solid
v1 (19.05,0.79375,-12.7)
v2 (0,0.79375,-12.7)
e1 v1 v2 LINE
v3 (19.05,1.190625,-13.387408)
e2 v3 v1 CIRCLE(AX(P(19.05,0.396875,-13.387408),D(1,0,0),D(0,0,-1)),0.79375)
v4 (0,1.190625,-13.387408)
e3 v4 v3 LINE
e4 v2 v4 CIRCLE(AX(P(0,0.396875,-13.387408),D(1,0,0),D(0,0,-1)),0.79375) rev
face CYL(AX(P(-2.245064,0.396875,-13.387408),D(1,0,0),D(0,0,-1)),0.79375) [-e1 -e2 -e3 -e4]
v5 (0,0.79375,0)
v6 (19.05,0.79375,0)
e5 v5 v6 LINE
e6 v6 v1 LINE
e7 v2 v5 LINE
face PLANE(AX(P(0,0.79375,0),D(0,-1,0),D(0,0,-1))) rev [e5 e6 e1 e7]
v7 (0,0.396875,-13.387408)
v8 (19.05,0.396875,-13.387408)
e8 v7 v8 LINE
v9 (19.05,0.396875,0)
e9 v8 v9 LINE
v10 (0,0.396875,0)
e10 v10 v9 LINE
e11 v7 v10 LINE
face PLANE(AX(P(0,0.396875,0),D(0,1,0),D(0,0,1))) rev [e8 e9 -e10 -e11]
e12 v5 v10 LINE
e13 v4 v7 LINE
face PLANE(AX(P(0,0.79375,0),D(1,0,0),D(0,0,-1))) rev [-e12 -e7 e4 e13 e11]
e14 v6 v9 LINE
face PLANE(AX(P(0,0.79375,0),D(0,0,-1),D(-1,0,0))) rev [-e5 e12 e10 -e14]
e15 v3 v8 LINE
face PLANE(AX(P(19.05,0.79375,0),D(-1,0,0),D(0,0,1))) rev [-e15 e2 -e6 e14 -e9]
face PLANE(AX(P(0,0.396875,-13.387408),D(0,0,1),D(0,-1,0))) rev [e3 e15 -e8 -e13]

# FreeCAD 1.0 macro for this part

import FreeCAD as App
import Part
import Sketcher
from FreeCAD import Vector
Q = App.Units.Quantity

doc = App.newDocument("Part")
body = doc.addObject("PartDesign::Body", "Body")

sketch1 = body.newObject("Sketcher::SketchObject", "Sketch")
sketch1.AttachmentSupport = (doc.getObject("XZ_Plane"), [""])
sketch1.MapMode = "FlatFace"
sketch1.addGeometry([
    Part.LineSegment(Vector(0, -13, 0), Vector(0, 0, 0)),
    Part.LineSegment(Vector(0, 0, 0), Vector(19, 0, 0)),
    Part.LineSegment(Vector(19, 0, 0), Vector(19, -13, 0)),
    Part.LineSegment(Vector(19, -13, 0), Vector(0, -13, 0)),
], False)
sketch1.addConstraint([
    Sketcher.Constraint("Coincident", 0, 2, 1, 1),
    Sketcher.Constraint("Coincident", 1, 2, 2, 1),
    Sketcher.Constraint("Coincident", 2, 2, 3, 1),
    Sketcher.Constraint("Coincident", 3, 2, 0, 1),
    Sketcher.Constraint("Vertical", 0),
    Sketcher.Constraint("Horizontal", 1),
    Sketcher.Constraint("Vertical", 2),
    Sketcher.Constraint("Horizontal", 3),
    Sketcher.Constraint("Coincident", 0, 2, -1, 1),
    Sketcher.Constraint("DistanceY", 0, 1, 0, 2, Q("0.5 in")),
    Sketcher.Constraint("DistanceX", 1, 1, 1, 2, Q("0.75 in")),
])
pad1 = body.newObject("PartDesign::Pad", "Pad")
pad1.Profile = sketch1
pad1.Length = Q("0.03125 in")
pad1.Reversed = True

sketch2 = body.newObject("Sketcher::SketchObject", "Sketch001")
sketch2.AttachmentSupport = (doc.getObject("YZ_Plane"), [""])
sketch2.MapMode = "FlatFace"
sketch2.AttachmentOffset = App.Placement(Vector(0, 0, 0.75 * 25.4), App.Rotation())
sketch2.addGeometry(Part.Circle(Vector(0.4, -13.4, 0), Vector(0, 0, 1), 0.8), False)
sketch2.addConstraint([
    Sketcher.Constraint("Diameter", 0, Q("0.0625 in")),
    Sketcher.Constraint("DistanceX", -1, 1, 0, 3, Q("0.015625 in")),
    Sketcher.Constraint("DistanceY", 0, 3, -1, 1, Q("13.387408 mm")),
])
pad2 = body.newObject("PartDesign::Pad", "Pad001")
pad2.Profile = sketch2
pad2.Length = Q("0.75 in")
pad2.Reversed = True

sketch3 = body.newObject("Sketcher::SketchObject", "Sketch002")
sketch3.AttachmentSupport = (doc.getObject("YZ_Plane"), [""])
sketch3.MapMode = "FlatFace"
sketch3.AttachmentOffset = App.Placement(Vector(0, 0, 0.75 * 25.4), App.Rotation())
sketch3.addGeometry([
    Part.LineSegment(Vector(0.4, -13.4, 0), Vector(0.4, 0, 0)),
    Part.LineSegment(Vector(0.4, 0, 0), Vector(-0.4, 0, 0)),
    Part.LineSegment(Vector(-0.4, 0, 0), Vector(-0.4, -14.2, 0)),
    Part.LineSegment(Vector(-0.4, -14.2, 0), Vector(1.2, -14.2, 0)),
    Part.LineSegment(Vector(1.2, -14.2, 0), Vector(1.2, -13.4, 0)),
    Part.LineSegment(Vector(1.2, -13.4, 0), Vector(0.4, -13.4, 0)),
], False)
sketch3.addConstraint([
    Sketcher.Constraint("Coincident", 0, 2, 1, 1),
    Sketcher.Constraint("Coincident", 1, 2, 2, 1),
    Sketcher.Constraint("Coincident", 2, 2, 3, 1),
    Sketcher.Constraint("Coincident", 3, 2, 4, 1),
    Sketcher.Constraint("Coincident", 4, 2, 5, 1),
    Sketcher.Constraint("Coincident", 5, 2, 0, 1),
    Sketcher.Constraint("Vertical", 0),
    Sketcher.Constraint("Horizontal", 1),
    Sketcher.Constraint("Vertical", 2),
    Sketcher.Constraint("Horizontal", 3),
    Sketcher.Constraint("Vertical", 4),
    Sketcher.Constraint("Horizontal", 5),
    Sketcher.Constraint("Symmetric", 0, 2, 1, 2, -1, 1),
    Sketcher.Constraint("Equal", 1, 5),
    Sketcher.Constraint("Equal", 5, 4),
    Sketcher.Constraint("DistanceX", 1, 2, 1, 1, Q("0.03125 in")),
    Sketcher.Constraint("DistanceY", 0, 1, 0, 2, Q("13.387408 mm")),
])
pocket1 = body.newObject("PartDesign::Pocket", "Pocket")
pocket1.Profile = sketch3
pocket1.Type = "ThroughAll"

doc.recompute()
